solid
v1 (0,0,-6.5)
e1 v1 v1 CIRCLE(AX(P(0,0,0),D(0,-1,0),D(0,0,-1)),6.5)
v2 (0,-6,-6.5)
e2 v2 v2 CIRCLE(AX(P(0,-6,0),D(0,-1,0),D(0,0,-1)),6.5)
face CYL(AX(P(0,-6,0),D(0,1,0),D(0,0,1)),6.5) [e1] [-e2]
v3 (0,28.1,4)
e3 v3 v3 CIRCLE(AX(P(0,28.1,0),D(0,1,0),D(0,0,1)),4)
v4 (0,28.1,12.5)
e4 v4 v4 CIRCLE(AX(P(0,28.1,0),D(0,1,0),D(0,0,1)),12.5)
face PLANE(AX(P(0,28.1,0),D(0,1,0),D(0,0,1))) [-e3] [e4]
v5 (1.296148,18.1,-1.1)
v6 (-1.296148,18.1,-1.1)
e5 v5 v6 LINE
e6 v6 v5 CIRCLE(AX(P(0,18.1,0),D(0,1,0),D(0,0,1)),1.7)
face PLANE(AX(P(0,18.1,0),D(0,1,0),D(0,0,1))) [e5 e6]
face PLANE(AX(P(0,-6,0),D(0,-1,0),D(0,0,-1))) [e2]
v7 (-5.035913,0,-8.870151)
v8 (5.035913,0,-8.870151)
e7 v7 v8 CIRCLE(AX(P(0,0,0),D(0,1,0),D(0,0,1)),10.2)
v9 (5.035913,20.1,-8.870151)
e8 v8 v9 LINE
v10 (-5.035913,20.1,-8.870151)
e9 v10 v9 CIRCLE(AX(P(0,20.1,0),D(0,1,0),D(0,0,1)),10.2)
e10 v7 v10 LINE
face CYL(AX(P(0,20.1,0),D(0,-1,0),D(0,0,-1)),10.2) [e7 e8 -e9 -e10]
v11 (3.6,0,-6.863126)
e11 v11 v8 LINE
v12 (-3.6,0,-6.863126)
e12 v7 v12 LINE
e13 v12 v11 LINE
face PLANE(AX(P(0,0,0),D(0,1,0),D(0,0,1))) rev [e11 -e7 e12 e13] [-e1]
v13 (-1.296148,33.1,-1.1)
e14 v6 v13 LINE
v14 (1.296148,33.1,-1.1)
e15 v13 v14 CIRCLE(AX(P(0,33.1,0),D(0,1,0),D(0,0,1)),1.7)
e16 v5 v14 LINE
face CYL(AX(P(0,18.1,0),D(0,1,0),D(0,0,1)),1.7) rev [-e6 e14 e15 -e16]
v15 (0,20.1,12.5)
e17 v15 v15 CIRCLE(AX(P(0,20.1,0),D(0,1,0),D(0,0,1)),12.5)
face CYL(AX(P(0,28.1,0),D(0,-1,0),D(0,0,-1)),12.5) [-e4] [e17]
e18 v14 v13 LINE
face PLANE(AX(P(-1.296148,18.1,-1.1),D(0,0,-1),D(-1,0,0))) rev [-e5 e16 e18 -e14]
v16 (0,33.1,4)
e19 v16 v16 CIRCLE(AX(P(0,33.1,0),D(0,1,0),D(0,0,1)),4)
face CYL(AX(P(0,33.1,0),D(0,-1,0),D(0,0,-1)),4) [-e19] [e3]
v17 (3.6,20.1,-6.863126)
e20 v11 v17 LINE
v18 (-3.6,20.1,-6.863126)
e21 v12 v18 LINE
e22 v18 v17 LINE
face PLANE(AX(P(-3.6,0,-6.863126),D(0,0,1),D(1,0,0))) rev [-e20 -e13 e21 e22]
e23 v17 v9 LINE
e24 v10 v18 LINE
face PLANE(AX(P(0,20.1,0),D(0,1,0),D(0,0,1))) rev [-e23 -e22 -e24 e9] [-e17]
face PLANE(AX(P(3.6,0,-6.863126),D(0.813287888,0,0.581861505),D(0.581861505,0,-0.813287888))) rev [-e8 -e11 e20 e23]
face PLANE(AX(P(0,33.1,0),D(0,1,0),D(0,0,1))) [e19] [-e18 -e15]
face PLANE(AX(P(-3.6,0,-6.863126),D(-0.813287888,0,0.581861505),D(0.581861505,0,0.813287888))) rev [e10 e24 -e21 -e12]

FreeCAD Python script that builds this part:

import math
import FreeCAD as App
import Part
import Sketcher

V = App.Vector

doc = App.newDocument("Part")
body = doc.addObject("PartDesign::Body", "Body")

# Sketch on XZ plane
sketch1 = body.newObject("Sketcher::SketchObject", "Sketch")
sketch1.AttachmentSupport = (doc.getObject("XZ_Plane"), [""])
sketch1.MapMode = "FlatFace"
sketch1.addGeometry(Part.Circle(V(0, 0, 0), V(0, 0, 1), 10), False)
sketch1.addConstraint(Sketcher.Constraint("Coincident", 0, 3, -1, 1))
sketch1.addConstraint(Sketcher.Constraint("Diameter", 0, 20.4))
pad1 = body.newObject("PartDesign::Pad", "Pad")
pad1.Profile = sketch1
pad1.Length = 20.1
pad1.Reversed = True

# Sketch on XZ plane
sketch2 = body.newObject("Sketcher::SketchObject", "Sketch001")
sketch2.AttachmentSupport = (doc.getObject("XZ_Plane"), [""])
sketch2.MapMode = "FlatFace"
sketch2.AttachmentOffset = App.Placement(V(0, 0, -20.1), App.Rotation())
sketch2.addGeometry(Part.LineSegment(V(-3.6, -6.9, 0), V(3.6, -6.9, 0)), False)
sketch2.addGeometry(Part.LineSegment(V(3.6, -6.9, 0), V(5, -8.9, 0)), False)
sketch2.addGeometry(Part.LineSegment(V(5, -8.9, 0), V(5, -10.9, 0)), False)
sketch2.addGeometry(Part.LineSegment(V(5, -10.9, 0), V(-4.9, -10.9, 0)), False)
sketch2.addGeometry(Part.LineSegment(V(-4.9, -10.9, 0), V(-5, -8.9, 0)), False)
sketch2.addGeometry(Part.LineSegment(V(-5, -8.9, 0), V(-3.6, -6.9, 0)), False)
sketch2.addConstraint(Sketcher.Constraint("Coincident", 0, 2, 1, 1))
sketch2.addConstraint(Sketcher.Constraint("Coincident", 1, 2, 2, 1))
sketch2.addConstraint(Sketcher.Constraint("Coincident", 2, 2, 3, 1))
sketch2.addConstraint(Sketcher.Constraint("Coincident", 3, 2, 4, 1))
sketch2.addConstraint(Sketcher.Constraint("Coincident", 4, 2, 5, 1))
sketch2.addConstraint(Sketcher.Constraint("Coincident", 5, 2, 0, 1))
sketch2.addConstraint(Sketcher.Constraint("Horizontal", 0))
sketch2.addConstraint(Sketcher.Constraint("Vertical", 2))
sketch2.addConstraint(Sketcher.Constraint("Horizontal", 3))
sketch2.addConstraint(Sketcher.Constraint("Symmetric", 1, 2, 4, 2, -2))
sketch2.addConstraint(Sketcher.Constraint("Equal", 1, 5))
sketch2.addConstraint(Sketcher.Constraint("DistanceX", 0, 1, 0, 2, 7.2))
sketch2.addConstraint(Sketcher.Constraint("DistanceX", 3, 2, 3, 1, 9.923711))
sketch2.addConstraint(Sketcher.Constraint("Distance", 1, 2.467792))
sketch2.addConstraint(Sketcher.Constraint("DistanceY", 2, 2, 2, 1, 2.065885))
sketch2.addConstraint(Sketcher.Constraint("DistanceY", 1, 2, -1, 1, 8.870151))
sketch2.addConstraint(Sketcher.Constraint("DistanceY", 2, 2, 0, 2, 4.07291))
pocket1 = body.newObject("PartDesign::Pocket", "Pocket")
pocket1.Profile = sketch2
pocket1.Type = "ThroughAll"
pocket1.Reversed = True

# Sketch on XZ plane
sketch3 = body.newObject("Sketcher::SketchObject", "Sketch002")
sketch3.AttachmentSupport = (doc.getObject("XZ_Plane"), [""])
sketch3.MapMode = "FlatFace"
sketch3.AttachmentOffset = App.Placement(V(0, 0, -20.1), App.Rotation())
sketch3.addGeometry(Part.Circle(V(0, 0, 0), V(0, 0, 1), 12), False)
sketch3.addConstraint(Sketcher.Constraint("Coincident", 0, 3, -1, 1))
sketch3.addConstraint(Sketcher.Constraint("Diameter", 0, 25.0))
pad2 = body.newObject("PartDesign::Pad", "Pad001")
pad2.Profile = sketch3
pad2.Length = 8
pad2.Reversed = True

# Sketch on XZ plane
sketch4 = body.newObject("Sketcher::SketchObject", "Sketch003")
sketch4.AttachmentSupport = (doc.getObject("XZ_Plane"), [""])
sketch4.MapMode = "FlatFace"
sketch4.AttachmentOffset = App.Placement(V(0, 0, -28.1), App.Rotation())
sketch4.addGeometry(Part.Circle(V(0, 0, 0), V(0, 0, 1), 4), False)
sketch4.addConstraint(Sketcher.Constraint("Coincident", 0, 3, -1, 1))
sketch4.addConstraint(Sketcher.Constraint("Diameter", 0, 8.0))
pad3 = body.newObject("PartDesign::Pad", "Pad002")
pad3.Profile = sketch4
pad3.Length = 5
pad3.Reversed = True

# Sketch on XZ plane
sketch5 = body.newObject("Sketcher::SketchObject", "Sketch004")
sketch5.AttachmentSupport = (doc.getObject("XZ_Plane"), [""])
sketch5.MapMode = "FlatFace"
sketch5.AttachmentOffset = App.Placement(V(0, 0, -33.1), App.Rotation())
sketch5.addGeometry(Part.LineSegment(V(1.3, -1.1, 0), V(-1.3, -1.1, 0)), False)
sketch5.addGeometry(Part.ArcOfCircle(Part.Circle(V(0, 0, 0), V(0, 0, 1), 1.7), math.radians(-40), math.radians(220)), False)
sketch5.addConstraint(Sketcher.Constraint("Coincident", 0, 1, 1, 1))
sketch5.addConstraint(Sketcher.Constraint("Coincident", 1, 2, 0, 2))
sketch5.addConstraint(Sketcher.Constraint("Horizontal", 0))
sketch5.addConstraint(Sketcher.Constraint("Coincident", 1, 3, -1, 1))
sketch5.addConstraint(Sketcher.Constraint("Radius", 1, 1.7))
sketch5.addConstraint(Sketcher.Constraint("DistanceY", 0, 1, -1, 1, 1.1))
pocket2 = body.newObject("PartDesign::Pocket", "Pocket001")
pocket2.Profile = sketch5
pocket2.Length = 15
pocket2.Reversed = True

# Sketch on XZ plane
sketch6 = body.newObject("Sketcher::SketchObject", "Sketch005")
sketch6.AttachmentSupport = (doc.getObject("XZ_Plane"), [""])
sketch6.MapMode = "FlatFace"
sketch6.addGeometry(Part.Circle(V(0, 0, 0), V(0, 0, 1), 6), False)
sketch6.addConstraint(Sketcher.Constraint("Coincident", 0, 3, -1, 1))
sketch6.addConstraint(Sketcher.Constraint("Diameter", 0, 13.0))
pad4 = body.newObject("PartDesign::Pad", "Pad003")
pad4.Profile = sketch6
pad4.Length = 6

doc.recompute()
